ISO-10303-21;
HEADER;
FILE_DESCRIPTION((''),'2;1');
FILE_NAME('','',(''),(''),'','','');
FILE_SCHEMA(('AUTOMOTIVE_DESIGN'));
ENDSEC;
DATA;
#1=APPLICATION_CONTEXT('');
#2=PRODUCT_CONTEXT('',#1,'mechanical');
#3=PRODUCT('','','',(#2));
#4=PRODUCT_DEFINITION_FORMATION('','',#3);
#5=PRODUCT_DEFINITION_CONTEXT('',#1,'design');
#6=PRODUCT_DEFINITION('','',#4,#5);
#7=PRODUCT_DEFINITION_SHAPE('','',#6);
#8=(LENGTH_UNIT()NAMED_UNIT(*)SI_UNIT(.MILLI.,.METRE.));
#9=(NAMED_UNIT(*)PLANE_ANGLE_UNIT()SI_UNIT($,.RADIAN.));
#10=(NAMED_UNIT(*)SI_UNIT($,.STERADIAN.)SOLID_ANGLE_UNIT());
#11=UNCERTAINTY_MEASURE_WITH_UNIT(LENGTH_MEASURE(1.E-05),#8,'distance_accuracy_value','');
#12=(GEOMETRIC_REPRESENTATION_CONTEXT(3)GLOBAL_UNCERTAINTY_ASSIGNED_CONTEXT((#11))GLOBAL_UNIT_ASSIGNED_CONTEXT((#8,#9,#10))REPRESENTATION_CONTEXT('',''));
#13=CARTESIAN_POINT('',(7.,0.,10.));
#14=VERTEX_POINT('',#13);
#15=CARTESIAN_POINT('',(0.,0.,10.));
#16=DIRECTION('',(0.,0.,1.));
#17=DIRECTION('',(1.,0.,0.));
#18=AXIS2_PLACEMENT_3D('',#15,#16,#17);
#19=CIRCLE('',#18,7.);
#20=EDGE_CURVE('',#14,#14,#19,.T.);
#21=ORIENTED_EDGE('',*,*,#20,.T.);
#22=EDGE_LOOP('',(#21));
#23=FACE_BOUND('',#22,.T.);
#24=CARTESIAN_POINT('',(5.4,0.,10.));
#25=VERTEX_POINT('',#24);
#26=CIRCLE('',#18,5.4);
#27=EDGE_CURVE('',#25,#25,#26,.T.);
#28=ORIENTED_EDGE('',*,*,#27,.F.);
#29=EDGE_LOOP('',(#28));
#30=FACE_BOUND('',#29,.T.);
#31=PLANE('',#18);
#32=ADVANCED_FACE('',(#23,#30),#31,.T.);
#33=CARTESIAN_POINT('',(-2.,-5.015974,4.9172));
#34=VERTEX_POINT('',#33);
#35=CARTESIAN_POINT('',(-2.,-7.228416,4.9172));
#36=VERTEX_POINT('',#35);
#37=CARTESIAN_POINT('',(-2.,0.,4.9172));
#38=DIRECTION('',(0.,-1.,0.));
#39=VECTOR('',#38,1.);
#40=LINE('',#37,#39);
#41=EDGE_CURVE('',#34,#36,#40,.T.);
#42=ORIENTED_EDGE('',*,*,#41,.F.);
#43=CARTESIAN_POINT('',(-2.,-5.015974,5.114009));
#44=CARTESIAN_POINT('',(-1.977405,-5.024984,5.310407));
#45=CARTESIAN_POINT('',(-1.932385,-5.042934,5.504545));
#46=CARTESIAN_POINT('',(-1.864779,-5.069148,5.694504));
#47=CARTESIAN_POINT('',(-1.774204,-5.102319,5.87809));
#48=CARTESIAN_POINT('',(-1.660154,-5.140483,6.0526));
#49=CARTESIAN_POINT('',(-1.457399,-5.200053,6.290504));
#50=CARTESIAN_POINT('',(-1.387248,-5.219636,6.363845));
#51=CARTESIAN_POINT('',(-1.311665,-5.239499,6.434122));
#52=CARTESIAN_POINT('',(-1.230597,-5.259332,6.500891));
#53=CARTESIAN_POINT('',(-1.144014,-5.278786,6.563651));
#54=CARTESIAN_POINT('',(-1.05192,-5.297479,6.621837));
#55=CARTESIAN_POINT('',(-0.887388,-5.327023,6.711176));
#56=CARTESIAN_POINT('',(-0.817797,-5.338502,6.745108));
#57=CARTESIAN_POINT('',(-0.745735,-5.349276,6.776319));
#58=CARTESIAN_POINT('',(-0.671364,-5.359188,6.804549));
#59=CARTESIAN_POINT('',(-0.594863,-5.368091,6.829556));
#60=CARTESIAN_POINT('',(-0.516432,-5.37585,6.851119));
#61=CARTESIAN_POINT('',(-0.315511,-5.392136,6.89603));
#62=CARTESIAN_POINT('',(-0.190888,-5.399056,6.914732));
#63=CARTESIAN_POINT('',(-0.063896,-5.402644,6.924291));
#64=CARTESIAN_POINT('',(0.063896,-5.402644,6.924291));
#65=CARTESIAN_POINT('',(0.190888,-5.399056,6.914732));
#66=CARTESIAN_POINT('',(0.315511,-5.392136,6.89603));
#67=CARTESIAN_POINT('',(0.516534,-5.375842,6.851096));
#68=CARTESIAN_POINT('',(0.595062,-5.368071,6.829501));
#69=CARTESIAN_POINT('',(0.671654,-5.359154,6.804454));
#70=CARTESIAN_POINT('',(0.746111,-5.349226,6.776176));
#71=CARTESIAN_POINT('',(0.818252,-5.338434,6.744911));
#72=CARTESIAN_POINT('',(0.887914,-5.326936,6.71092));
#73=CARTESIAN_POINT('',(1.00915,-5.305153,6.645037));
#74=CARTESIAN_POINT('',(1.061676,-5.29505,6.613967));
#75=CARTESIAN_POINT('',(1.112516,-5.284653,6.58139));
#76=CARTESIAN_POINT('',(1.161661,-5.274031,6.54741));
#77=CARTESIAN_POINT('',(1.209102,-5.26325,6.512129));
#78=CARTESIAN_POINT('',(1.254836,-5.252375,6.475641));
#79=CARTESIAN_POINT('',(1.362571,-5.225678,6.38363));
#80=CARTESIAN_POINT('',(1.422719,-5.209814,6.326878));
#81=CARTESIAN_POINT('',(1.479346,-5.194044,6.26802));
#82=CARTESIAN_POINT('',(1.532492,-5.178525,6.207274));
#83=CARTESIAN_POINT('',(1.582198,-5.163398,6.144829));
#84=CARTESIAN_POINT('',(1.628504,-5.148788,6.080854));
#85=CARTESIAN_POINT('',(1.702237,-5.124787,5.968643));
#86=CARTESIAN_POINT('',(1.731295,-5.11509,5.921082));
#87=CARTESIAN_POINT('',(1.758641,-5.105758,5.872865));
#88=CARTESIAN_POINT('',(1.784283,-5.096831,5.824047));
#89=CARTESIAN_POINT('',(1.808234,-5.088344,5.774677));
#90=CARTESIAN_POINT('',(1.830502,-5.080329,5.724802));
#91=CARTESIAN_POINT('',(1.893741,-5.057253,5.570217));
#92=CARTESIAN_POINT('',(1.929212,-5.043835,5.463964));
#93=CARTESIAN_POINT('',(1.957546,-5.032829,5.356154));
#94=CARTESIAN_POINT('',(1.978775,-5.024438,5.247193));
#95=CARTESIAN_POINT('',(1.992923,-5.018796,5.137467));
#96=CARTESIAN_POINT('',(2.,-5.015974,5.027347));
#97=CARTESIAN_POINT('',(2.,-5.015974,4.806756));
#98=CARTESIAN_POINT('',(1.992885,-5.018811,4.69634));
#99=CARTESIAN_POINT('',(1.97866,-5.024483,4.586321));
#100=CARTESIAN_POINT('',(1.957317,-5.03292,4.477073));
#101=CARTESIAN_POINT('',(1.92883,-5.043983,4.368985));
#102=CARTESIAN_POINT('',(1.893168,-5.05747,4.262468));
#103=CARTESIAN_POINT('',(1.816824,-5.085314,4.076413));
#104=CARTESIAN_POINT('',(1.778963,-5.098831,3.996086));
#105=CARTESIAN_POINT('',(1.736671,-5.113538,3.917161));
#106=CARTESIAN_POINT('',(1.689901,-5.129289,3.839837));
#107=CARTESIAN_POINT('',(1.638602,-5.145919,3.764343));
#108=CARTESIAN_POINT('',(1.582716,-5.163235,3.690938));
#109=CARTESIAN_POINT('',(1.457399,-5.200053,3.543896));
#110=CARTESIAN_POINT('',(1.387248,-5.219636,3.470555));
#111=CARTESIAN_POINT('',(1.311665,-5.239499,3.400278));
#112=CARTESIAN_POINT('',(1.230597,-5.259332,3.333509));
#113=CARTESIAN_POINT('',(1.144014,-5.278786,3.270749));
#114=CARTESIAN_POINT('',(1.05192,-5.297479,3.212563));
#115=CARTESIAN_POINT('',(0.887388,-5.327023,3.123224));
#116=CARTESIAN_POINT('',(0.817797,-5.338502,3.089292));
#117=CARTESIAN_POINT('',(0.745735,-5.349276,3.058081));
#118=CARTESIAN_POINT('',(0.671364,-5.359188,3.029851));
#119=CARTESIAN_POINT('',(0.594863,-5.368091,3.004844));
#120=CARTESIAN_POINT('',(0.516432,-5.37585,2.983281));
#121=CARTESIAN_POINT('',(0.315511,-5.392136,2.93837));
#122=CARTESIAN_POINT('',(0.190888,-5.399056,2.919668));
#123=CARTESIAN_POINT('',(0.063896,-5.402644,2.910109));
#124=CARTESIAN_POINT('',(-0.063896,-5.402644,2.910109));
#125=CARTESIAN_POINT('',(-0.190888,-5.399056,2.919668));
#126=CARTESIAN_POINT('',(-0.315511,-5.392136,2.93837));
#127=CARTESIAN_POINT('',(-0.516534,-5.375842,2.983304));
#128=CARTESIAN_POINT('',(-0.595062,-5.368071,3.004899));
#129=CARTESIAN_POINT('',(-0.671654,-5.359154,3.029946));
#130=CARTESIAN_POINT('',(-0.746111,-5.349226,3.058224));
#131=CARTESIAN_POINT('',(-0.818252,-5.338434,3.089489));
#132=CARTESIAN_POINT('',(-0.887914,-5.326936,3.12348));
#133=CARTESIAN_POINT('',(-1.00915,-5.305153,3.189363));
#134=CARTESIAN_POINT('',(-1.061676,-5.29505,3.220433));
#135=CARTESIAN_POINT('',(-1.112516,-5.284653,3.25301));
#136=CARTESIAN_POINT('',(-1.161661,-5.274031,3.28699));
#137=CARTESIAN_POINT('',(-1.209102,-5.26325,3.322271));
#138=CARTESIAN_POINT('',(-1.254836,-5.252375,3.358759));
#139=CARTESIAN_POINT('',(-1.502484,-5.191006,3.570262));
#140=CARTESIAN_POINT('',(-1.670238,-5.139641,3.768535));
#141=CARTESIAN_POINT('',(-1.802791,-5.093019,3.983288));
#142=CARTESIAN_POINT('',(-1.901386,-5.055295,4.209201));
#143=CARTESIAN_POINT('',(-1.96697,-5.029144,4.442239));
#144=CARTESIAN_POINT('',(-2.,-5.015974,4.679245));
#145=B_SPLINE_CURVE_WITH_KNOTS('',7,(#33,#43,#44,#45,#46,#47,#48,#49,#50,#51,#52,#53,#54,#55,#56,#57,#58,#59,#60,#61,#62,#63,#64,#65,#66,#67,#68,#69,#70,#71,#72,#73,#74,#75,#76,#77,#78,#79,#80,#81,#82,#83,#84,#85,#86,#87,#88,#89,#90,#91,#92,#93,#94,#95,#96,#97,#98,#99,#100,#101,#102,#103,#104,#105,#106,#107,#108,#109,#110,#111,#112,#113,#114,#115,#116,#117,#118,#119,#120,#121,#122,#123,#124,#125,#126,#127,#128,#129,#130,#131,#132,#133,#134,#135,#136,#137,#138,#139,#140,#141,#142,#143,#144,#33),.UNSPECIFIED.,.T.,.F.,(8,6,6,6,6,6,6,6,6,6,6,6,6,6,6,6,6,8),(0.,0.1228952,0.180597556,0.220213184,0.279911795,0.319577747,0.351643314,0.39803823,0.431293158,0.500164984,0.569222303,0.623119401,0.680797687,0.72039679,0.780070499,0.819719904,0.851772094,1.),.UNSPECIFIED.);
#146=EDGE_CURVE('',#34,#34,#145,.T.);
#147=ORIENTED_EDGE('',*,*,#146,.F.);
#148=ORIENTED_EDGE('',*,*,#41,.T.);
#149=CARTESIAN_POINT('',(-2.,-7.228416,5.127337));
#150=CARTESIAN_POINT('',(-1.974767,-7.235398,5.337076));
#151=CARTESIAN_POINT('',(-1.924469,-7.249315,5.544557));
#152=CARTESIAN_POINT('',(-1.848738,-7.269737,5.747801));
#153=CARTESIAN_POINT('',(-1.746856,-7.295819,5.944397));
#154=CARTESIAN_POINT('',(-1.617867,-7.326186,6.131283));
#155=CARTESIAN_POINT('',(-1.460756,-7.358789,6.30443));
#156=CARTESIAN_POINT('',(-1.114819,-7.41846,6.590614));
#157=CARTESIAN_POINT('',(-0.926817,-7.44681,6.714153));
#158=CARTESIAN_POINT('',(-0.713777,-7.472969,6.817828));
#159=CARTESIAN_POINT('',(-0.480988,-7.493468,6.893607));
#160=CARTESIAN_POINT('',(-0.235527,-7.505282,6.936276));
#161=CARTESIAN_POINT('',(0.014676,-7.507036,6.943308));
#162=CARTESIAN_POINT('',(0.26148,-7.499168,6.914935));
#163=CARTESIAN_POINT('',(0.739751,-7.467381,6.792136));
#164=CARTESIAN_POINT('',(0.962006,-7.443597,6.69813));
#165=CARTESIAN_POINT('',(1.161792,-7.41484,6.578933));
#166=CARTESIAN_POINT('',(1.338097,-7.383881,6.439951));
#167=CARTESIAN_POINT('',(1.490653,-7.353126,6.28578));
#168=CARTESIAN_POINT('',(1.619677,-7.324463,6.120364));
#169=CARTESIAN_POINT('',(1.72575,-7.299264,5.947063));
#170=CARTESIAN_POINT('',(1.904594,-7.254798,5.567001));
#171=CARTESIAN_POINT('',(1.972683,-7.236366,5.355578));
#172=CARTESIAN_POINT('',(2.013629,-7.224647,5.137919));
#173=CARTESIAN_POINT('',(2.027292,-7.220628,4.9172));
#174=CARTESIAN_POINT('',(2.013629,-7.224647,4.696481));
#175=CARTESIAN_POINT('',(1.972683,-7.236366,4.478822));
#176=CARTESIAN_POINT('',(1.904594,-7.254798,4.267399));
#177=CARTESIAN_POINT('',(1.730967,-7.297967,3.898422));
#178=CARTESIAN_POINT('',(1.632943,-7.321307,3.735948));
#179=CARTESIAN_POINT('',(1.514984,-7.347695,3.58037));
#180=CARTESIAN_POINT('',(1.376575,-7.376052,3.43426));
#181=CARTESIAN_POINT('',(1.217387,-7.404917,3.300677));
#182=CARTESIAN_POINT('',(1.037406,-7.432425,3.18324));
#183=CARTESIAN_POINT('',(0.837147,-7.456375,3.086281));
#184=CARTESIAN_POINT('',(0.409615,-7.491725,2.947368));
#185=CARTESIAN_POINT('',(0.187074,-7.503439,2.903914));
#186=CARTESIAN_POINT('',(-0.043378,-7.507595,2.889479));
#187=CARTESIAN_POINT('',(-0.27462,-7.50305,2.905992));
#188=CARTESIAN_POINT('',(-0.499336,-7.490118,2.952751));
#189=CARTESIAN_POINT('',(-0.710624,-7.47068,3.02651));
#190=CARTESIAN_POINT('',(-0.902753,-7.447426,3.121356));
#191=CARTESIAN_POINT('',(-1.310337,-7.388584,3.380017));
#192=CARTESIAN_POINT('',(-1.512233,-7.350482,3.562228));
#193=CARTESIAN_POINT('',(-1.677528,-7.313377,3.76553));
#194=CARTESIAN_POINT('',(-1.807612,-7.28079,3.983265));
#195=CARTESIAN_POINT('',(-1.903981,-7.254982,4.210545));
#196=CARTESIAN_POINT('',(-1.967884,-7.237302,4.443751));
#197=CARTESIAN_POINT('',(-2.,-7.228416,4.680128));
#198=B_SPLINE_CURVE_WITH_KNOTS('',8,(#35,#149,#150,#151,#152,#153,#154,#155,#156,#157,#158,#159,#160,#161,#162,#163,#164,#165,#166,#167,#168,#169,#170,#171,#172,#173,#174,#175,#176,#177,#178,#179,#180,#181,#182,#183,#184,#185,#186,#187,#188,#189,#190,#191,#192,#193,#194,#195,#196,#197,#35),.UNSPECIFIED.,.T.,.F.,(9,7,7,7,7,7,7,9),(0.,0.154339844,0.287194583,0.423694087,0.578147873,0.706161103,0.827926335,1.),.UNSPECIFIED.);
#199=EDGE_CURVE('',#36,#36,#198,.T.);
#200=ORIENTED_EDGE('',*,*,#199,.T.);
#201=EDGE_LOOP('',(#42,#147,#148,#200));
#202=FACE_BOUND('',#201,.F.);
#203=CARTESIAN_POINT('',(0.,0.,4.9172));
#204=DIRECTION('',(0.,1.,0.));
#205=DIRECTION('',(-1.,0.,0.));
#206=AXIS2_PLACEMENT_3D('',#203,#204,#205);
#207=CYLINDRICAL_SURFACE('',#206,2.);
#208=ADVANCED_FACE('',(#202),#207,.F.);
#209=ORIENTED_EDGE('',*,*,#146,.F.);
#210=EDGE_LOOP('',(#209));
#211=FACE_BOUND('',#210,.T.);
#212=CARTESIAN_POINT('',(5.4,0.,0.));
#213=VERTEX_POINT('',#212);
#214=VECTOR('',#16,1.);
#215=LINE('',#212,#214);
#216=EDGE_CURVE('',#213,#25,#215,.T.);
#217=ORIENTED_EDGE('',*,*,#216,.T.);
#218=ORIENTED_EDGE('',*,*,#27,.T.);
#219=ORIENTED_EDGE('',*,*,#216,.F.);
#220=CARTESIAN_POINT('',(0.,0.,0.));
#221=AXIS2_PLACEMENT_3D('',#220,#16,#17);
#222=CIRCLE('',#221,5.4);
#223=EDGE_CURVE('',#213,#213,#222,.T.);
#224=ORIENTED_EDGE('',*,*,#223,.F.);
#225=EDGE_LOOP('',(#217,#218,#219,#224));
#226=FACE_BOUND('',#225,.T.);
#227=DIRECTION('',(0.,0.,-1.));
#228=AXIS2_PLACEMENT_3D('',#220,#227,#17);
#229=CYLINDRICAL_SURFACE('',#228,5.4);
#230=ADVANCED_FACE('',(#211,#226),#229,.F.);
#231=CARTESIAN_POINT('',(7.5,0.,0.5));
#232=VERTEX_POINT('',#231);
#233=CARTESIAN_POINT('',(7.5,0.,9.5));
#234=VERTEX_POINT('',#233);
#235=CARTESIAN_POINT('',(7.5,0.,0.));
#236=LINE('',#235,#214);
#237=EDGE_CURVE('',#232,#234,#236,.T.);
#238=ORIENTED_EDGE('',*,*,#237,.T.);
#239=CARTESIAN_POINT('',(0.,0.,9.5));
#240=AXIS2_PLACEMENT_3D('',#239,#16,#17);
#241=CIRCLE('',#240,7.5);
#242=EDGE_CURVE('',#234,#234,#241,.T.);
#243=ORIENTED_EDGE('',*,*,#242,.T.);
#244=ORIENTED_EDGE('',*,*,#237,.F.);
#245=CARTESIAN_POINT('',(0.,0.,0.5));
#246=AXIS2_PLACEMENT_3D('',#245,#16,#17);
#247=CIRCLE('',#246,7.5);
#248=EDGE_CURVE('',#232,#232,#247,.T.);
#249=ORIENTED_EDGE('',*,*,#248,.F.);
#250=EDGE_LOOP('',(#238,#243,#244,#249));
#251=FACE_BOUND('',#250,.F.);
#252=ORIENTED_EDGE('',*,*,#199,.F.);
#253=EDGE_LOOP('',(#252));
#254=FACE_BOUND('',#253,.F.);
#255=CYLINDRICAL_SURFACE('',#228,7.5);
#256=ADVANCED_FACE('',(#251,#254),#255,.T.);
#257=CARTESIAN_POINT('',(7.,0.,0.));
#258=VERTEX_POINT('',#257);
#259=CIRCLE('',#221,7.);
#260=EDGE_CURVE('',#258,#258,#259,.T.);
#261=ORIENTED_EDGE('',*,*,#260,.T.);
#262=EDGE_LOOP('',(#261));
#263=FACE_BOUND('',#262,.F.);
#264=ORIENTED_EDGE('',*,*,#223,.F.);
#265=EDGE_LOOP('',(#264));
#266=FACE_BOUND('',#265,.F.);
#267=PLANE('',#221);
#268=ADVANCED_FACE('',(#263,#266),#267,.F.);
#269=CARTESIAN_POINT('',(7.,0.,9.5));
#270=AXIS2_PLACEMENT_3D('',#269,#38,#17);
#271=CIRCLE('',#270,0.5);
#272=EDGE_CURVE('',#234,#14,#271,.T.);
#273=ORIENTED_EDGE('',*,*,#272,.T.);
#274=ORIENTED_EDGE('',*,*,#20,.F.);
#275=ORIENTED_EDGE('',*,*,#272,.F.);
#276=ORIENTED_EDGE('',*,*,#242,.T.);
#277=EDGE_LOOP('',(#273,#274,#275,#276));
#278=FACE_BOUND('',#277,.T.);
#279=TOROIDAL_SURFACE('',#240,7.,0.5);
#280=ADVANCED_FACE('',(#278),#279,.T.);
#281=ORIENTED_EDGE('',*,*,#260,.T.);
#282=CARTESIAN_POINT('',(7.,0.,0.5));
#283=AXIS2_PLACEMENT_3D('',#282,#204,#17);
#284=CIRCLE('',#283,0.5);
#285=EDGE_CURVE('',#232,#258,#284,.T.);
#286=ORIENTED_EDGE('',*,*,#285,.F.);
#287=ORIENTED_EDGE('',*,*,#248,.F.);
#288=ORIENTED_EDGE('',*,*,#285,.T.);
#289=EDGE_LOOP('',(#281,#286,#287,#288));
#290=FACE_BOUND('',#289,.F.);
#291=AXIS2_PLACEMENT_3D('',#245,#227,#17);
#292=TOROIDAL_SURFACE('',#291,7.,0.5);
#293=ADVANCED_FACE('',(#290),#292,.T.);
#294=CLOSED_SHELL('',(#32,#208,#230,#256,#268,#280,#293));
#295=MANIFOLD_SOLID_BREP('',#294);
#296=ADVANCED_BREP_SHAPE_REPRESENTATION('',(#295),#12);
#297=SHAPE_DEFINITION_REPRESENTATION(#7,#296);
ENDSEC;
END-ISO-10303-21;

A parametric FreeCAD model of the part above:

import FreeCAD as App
import Part
import Sketcher

V = App.Vector
Q = App.Units.Quantity


def edges_at(feature, points):
    """Names of the edges that pass closest to the given points."""
    edges = feature.Shape.Edges
    near = lambda p: min(range(len(edges)), key=lambda i: edges[i].distToShape(Part.Vertex(*p))[0])
    return sorted({f"Edge{near(p) + 1}" for p in points})

doc = App.newDocument("Part")
body = doc.addObject("PartDesign::Body", "Body")

# Sketch on XY plane
sketch1 = body.newObject("Sketcher::SketchObject", "Sketch")
sketch1.AttachmentSupport = (doc.getObject("XY_Plane"), [""])
sketch1.MapMode = "FlatFace"
sketch1.addGeometry(Part.Circle(V(0, 0, 0), V(0, 0, 1), 8), False)
sketch1.addGeometry(Part.Circle(V(0, 0, 0), V(0, 0, 1), 5), False)
sketch1.addConstraint(Sketcher.Constraint("Coincident", 0, 3, -1, 1))
sketch1.addConstraint(Sketcher.Constraint("Coincident", 1, 3, -1, 1))
sketch1.addConstraint(Sketcher.Constraint("Diameter", 0, Q("15 mm")))
sketch1.addConstraint(Sketcher.Constraint("Diameter", 1, Q("10.8 mm")))
pad1 = body.newObject("PartDesign::Pad", "Pad")
pad1.Profile = sketch1
pad1.Length = 10
doc.recompute()

fillet = body.newObject("PartDesign::Fillet", "Fillet")
fillet.Base = (pad1, edges_at(pad1, [(-7.5, 0, 10), (-7.5, 0, 0)]))
fillet.Radius = 0.5

# Sketch on XZ plane
sketch2 = body.newObject("Sketcher::SketchObject", "Sketch001")
sketch2.AttachmentSupport = (doc.getObject("XZ_Plane"), [""])
sketch2.MapMode = "FlatFace"
sketch2.addGeometry(Part.Circle(V(0, 4.9, 0), V(0, 0, 1), 2), False)
sketch2.addConstraint(Sketcher.Constraint("PointOnObject", 0, 3, -2))
sketch2.addConstraint(Sketcher.Constraint("Diameter", 0, Q("4 mm")))
sketch2.addConstraint(Sketcher.Constraint("DistanceY", -1, 1, 0, 3, Q("4.9172 mm")))
pocket1 = body.newObject("PartDesign::Pocket", "Pocket")
pocket1.Profile = sketch2
pocket1.Length = 10
pocket1.Reversed = True

doc.recompute()
